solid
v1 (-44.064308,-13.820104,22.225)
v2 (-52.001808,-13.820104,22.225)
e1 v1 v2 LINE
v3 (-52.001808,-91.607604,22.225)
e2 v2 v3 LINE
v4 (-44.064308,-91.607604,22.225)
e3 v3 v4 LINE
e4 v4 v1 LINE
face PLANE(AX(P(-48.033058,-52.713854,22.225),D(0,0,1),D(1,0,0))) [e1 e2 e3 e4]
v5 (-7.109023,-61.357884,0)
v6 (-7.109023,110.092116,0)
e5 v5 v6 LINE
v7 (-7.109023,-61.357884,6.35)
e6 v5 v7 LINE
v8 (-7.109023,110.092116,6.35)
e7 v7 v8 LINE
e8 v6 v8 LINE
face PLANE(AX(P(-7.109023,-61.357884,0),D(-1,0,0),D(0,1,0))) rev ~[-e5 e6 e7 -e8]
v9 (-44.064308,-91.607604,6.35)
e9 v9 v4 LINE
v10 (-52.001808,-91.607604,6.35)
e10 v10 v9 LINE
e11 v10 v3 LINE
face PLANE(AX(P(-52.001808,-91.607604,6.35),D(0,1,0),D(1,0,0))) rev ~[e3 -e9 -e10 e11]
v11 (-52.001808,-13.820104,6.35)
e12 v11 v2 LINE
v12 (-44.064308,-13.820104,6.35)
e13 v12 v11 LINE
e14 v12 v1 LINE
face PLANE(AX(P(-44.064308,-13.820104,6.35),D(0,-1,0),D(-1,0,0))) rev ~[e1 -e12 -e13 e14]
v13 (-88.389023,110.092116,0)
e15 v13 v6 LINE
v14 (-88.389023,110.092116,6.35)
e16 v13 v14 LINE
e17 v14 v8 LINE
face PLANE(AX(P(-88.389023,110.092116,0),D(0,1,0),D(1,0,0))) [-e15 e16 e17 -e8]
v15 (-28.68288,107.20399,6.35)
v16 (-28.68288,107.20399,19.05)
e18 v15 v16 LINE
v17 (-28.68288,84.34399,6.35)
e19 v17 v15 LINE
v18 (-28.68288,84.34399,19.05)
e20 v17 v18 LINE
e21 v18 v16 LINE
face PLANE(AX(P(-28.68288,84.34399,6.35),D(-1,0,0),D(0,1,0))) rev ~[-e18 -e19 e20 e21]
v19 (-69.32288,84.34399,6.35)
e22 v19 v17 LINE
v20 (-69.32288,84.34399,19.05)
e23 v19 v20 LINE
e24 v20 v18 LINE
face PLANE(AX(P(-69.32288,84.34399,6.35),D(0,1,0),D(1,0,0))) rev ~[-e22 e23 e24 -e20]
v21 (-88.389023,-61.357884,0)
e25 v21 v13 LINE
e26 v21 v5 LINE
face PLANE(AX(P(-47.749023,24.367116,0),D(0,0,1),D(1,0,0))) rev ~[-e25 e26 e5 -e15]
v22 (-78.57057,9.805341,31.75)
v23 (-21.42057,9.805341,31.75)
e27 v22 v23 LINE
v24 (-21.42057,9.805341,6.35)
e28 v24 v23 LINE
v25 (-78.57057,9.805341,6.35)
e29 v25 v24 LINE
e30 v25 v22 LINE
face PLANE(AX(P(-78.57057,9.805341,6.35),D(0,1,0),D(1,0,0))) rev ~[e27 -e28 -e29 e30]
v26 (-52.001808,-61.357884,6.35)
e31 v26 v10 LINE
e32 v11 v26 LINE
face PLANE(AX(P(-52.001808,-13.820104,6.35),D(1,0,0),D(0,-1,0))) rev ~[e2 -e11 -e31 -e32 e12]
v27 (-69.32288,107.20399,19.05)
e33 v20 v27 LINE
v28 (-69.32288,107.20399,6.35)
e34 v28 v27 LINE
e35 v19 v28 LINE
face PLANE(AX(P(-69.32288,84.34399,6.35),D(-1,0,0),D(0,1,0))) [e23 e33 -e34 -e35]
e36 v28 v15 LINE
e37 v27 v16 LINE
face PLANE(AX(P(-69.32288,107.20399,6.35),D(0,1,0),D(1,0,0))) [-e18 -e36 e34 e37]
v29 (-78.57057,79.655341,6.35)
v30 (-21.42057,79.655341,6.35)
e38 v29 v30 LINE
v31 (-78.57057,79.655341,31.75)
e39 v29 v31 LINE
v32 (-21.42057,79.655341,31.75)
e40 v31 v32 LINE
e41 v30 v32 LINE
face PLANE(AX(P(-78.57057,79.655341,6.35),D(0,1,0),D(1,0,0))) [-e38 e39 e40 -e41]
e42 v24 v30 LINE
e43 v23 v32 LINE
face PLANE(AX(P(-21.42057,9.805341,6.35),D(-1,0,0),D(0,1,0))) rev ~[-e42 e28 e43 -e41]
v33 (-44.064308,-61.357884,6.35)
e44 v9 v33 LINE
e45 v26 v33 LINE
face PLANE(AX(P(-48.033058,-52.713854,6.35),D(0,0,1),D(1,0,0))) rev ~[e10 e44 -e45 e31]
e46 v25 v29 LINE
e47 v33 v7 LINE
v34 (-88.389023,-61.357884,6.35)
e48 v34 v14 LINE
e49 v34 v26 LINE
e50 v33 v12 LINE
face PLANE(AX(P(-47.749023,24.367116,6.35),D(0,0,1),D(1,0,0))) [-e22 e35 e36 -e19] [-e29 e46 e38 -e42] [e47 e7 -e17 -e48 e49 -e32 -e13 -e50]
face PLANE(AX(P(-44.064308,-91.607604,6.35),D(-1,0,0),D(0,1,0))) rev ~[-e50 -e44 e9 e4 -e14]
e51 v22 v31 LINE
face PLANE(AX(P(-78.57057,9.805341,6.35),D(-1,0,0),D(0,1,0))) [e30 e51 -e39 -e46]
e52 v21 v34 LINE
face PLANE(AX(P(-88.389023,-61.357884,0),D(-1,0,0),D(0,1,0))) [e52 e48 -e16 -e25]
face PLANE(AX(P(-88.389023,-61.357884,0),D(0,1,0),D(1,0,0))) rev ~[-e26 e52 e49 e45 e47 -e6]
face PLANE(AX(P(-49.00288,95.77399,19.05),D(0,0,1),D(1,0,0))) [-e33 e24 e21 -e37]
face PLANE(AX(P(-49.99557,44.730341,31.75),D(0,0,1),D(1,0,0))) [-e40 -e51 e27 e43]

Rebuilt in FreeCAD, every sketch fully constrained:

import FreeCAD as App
import Part
import Sketcher
from FreeCAD import Vector
Q = App.Units.Quantity


def add_polygon(sketch, points):
    """Adds a closed chain of lines whose ends are joined by coincident constraints."""
    first, n = sketch.GeometryCount, len(points)
    for a, b in zip(points, points[1:] + points[:1]):
        sketch.addGeometry(Part.LineSegment(App.Vector(*a, 0), App.Vector(*b, 0)), False)
    for i in range(n):
        sketch.addConstraint(Sketcher.Constraint("Coincident", first + i, 2, first + (i + 1) % n, 1))

doc = App.newDocument("Part")
body = doc.addObject("PartDesign::Body", "Body")

sketch1 = doc.addObject("Sketcher::SketchObject", "Sketch")
body.addObject(sketch1)
sketch1.AttachmentSupport = (doc.XY_Plane, [""])
sketch1.MapMode = "FlatFace"
add_polygon(sketch1, [(-88, 110), (-88, -61), (-7, -61), (-7, 110)])
sketch1.addConstraint([
    Sketcher.Constraint("Vertical", 0),
    Sketcher.Constraint("Horizontal", 1),
    Sketcher.Constraint("Vertical", 2),
    Sketcher.Constraint("Horizontal", 3),
    Sketcher.Constraint("DistanceX", 1, 1, 1, 2, Q("3.2 in")),
    Sketcher.Constraint("DistanceY", 0, 2, 0, 1, Q("6.75 in")),
    Sketcher.Constraint("DistanceX", 0, 2, -1, 1, 88.389023),
    Sketcher.Constraint("DistanceY", 0, 2, -1, 1, 61.357884),
])
pad1 = doc.addObject("PartDesign::Pad", "Pad")
body.addObject(pad1)
pad1.Profile = sketch1
pad1.Length = Q("0.25 in")

sketch2 = doc.addObject("Sketcher::SketchObject", "Sketch001")
body.addObject(sketch2)
sketch2.AttachmentSupport = (doc.XY_Plane, [""])
sketch2.MapMode = "FlatFace"
sketch2.AttachmentOffset = App.Placement(Vector(0, 0, 0.25 * 25.4), App.Rotation())
add_polygon(sketch2, [(-79, 80), (-79, 10), (-21, 10), (-21, 80)])
sketch2.addConstraint([
    Sketcher.Constraint("Vertical", 0),
    Sketcher.Constraint("Horizontal", 1),
    Sketcher.Constraint("Vertical", 2),
    Sketcher.Constraint("Horizontal", 3),
    Sketcher.Constraint("DistanceX", 1, 1, 1, 2, Q("2.25 in")),
    Sketcher.Constraint("DistanceY", 0, 2, 0, 1, Q("2.75 in")),
    Sketcher.Constraint("DistanceX", 0, 2, -1, 1, 78.57057),
    Sketcher.Constraint("DistanceY", -1, 1, 0, 2, 9.805341),
])
pad2 = doc.addObject("PartDesign::Pad", "Pad001")
body.addObject(pad2)
pad2.Profile = sketch2
pad2.Length = Q("1 in")

sketch3 = doc.addObject("Sketcher::SketchObject", "Sketch002")
body.addObject(sketch3)
sketch3.AttachmentSupport = (doc.XY_Plane, [""])
sketch3.MapMode = "FlatFace"
sketch3.AttachmentOffset = App.Placement(Vector(0, 0, 0.25 * 25.4), App.Rotation())
add_polygon(sketch3, [(-69, 107), (-69, 84), (-29, 84), (-29, 107)])
sketch3.addConstraint([
    Sketcher.Constraint("Vertical", 0),
    Sketcher.Constraint("Horizontal", 1),
    Sketcher.Constraint("Vertical", 2),
    Sketcher.Constraint("Horizontal", 3),
    Sketcher.Constraint("DistanceX", 1, 1, 1, 2, Q("1.6 in")),
    Sketcher.Constraint("DistanceY", 0, 2, 0, 1, Q("0.9 in")),
    Sketcher.Constraint("DistanceX", 0, 2, -1, 1, 69.32288),
    Sketcher.Constraint("DistanceY", -1, 1, 0, 2, 84.34399),
])
pad3 = doc.addObject("PartDesign::Pad", "Pad002")
body.addObject(pad3)
pad3.Profile = sketch3
pad3.Length = Q("0.5 in")

sketch4 = doc.addObject("Sketcher::SketchObject", "Sketch003")
body.addObject(sketch4)
sketch4.AttachmentSupport = (doc.XY_Plane, [""])
sketch4.MapMode = "FlatFace"
sketch4.AttachmentOffset = App.Placement(Vector(0, 0, 0.25 * 25.4), App.Rotation())
add_polygon(sketch4, [(-52, -14), (-52, -92), (-44, -92), (-44, -14)])
sketch4.addConstraint([
    Sketcher.Constraint("Vertical", 0),
    Sketcher.Constraint("Horizontal", 1),
    Sketcher.Constraint("Vertical", 2),
    Sketcher.Constraint("Horizontal", 3),
    Sketcher.Constraint("DistanceX", 1, 1, 1, 2, Q("0.3125 in")),
    Sketcher.Constraint("DistanceY", 0, 2, 0, 1, Q("3.0625 in")),
    Sketcher.Constraint("DistanceX", 0, 2, -1, 1, 52.001808),
    Sketcher.Constraint("DistanceY", 0, 2, -1, 1, 91.607604),
])
pad4 = doc.addObject("PartDesign::Pad", "Pad003")
body.addObject(pad4)
pad4.Profile = sketch4
pad4.Length = Q("0.625 in")

doc.recompute()
